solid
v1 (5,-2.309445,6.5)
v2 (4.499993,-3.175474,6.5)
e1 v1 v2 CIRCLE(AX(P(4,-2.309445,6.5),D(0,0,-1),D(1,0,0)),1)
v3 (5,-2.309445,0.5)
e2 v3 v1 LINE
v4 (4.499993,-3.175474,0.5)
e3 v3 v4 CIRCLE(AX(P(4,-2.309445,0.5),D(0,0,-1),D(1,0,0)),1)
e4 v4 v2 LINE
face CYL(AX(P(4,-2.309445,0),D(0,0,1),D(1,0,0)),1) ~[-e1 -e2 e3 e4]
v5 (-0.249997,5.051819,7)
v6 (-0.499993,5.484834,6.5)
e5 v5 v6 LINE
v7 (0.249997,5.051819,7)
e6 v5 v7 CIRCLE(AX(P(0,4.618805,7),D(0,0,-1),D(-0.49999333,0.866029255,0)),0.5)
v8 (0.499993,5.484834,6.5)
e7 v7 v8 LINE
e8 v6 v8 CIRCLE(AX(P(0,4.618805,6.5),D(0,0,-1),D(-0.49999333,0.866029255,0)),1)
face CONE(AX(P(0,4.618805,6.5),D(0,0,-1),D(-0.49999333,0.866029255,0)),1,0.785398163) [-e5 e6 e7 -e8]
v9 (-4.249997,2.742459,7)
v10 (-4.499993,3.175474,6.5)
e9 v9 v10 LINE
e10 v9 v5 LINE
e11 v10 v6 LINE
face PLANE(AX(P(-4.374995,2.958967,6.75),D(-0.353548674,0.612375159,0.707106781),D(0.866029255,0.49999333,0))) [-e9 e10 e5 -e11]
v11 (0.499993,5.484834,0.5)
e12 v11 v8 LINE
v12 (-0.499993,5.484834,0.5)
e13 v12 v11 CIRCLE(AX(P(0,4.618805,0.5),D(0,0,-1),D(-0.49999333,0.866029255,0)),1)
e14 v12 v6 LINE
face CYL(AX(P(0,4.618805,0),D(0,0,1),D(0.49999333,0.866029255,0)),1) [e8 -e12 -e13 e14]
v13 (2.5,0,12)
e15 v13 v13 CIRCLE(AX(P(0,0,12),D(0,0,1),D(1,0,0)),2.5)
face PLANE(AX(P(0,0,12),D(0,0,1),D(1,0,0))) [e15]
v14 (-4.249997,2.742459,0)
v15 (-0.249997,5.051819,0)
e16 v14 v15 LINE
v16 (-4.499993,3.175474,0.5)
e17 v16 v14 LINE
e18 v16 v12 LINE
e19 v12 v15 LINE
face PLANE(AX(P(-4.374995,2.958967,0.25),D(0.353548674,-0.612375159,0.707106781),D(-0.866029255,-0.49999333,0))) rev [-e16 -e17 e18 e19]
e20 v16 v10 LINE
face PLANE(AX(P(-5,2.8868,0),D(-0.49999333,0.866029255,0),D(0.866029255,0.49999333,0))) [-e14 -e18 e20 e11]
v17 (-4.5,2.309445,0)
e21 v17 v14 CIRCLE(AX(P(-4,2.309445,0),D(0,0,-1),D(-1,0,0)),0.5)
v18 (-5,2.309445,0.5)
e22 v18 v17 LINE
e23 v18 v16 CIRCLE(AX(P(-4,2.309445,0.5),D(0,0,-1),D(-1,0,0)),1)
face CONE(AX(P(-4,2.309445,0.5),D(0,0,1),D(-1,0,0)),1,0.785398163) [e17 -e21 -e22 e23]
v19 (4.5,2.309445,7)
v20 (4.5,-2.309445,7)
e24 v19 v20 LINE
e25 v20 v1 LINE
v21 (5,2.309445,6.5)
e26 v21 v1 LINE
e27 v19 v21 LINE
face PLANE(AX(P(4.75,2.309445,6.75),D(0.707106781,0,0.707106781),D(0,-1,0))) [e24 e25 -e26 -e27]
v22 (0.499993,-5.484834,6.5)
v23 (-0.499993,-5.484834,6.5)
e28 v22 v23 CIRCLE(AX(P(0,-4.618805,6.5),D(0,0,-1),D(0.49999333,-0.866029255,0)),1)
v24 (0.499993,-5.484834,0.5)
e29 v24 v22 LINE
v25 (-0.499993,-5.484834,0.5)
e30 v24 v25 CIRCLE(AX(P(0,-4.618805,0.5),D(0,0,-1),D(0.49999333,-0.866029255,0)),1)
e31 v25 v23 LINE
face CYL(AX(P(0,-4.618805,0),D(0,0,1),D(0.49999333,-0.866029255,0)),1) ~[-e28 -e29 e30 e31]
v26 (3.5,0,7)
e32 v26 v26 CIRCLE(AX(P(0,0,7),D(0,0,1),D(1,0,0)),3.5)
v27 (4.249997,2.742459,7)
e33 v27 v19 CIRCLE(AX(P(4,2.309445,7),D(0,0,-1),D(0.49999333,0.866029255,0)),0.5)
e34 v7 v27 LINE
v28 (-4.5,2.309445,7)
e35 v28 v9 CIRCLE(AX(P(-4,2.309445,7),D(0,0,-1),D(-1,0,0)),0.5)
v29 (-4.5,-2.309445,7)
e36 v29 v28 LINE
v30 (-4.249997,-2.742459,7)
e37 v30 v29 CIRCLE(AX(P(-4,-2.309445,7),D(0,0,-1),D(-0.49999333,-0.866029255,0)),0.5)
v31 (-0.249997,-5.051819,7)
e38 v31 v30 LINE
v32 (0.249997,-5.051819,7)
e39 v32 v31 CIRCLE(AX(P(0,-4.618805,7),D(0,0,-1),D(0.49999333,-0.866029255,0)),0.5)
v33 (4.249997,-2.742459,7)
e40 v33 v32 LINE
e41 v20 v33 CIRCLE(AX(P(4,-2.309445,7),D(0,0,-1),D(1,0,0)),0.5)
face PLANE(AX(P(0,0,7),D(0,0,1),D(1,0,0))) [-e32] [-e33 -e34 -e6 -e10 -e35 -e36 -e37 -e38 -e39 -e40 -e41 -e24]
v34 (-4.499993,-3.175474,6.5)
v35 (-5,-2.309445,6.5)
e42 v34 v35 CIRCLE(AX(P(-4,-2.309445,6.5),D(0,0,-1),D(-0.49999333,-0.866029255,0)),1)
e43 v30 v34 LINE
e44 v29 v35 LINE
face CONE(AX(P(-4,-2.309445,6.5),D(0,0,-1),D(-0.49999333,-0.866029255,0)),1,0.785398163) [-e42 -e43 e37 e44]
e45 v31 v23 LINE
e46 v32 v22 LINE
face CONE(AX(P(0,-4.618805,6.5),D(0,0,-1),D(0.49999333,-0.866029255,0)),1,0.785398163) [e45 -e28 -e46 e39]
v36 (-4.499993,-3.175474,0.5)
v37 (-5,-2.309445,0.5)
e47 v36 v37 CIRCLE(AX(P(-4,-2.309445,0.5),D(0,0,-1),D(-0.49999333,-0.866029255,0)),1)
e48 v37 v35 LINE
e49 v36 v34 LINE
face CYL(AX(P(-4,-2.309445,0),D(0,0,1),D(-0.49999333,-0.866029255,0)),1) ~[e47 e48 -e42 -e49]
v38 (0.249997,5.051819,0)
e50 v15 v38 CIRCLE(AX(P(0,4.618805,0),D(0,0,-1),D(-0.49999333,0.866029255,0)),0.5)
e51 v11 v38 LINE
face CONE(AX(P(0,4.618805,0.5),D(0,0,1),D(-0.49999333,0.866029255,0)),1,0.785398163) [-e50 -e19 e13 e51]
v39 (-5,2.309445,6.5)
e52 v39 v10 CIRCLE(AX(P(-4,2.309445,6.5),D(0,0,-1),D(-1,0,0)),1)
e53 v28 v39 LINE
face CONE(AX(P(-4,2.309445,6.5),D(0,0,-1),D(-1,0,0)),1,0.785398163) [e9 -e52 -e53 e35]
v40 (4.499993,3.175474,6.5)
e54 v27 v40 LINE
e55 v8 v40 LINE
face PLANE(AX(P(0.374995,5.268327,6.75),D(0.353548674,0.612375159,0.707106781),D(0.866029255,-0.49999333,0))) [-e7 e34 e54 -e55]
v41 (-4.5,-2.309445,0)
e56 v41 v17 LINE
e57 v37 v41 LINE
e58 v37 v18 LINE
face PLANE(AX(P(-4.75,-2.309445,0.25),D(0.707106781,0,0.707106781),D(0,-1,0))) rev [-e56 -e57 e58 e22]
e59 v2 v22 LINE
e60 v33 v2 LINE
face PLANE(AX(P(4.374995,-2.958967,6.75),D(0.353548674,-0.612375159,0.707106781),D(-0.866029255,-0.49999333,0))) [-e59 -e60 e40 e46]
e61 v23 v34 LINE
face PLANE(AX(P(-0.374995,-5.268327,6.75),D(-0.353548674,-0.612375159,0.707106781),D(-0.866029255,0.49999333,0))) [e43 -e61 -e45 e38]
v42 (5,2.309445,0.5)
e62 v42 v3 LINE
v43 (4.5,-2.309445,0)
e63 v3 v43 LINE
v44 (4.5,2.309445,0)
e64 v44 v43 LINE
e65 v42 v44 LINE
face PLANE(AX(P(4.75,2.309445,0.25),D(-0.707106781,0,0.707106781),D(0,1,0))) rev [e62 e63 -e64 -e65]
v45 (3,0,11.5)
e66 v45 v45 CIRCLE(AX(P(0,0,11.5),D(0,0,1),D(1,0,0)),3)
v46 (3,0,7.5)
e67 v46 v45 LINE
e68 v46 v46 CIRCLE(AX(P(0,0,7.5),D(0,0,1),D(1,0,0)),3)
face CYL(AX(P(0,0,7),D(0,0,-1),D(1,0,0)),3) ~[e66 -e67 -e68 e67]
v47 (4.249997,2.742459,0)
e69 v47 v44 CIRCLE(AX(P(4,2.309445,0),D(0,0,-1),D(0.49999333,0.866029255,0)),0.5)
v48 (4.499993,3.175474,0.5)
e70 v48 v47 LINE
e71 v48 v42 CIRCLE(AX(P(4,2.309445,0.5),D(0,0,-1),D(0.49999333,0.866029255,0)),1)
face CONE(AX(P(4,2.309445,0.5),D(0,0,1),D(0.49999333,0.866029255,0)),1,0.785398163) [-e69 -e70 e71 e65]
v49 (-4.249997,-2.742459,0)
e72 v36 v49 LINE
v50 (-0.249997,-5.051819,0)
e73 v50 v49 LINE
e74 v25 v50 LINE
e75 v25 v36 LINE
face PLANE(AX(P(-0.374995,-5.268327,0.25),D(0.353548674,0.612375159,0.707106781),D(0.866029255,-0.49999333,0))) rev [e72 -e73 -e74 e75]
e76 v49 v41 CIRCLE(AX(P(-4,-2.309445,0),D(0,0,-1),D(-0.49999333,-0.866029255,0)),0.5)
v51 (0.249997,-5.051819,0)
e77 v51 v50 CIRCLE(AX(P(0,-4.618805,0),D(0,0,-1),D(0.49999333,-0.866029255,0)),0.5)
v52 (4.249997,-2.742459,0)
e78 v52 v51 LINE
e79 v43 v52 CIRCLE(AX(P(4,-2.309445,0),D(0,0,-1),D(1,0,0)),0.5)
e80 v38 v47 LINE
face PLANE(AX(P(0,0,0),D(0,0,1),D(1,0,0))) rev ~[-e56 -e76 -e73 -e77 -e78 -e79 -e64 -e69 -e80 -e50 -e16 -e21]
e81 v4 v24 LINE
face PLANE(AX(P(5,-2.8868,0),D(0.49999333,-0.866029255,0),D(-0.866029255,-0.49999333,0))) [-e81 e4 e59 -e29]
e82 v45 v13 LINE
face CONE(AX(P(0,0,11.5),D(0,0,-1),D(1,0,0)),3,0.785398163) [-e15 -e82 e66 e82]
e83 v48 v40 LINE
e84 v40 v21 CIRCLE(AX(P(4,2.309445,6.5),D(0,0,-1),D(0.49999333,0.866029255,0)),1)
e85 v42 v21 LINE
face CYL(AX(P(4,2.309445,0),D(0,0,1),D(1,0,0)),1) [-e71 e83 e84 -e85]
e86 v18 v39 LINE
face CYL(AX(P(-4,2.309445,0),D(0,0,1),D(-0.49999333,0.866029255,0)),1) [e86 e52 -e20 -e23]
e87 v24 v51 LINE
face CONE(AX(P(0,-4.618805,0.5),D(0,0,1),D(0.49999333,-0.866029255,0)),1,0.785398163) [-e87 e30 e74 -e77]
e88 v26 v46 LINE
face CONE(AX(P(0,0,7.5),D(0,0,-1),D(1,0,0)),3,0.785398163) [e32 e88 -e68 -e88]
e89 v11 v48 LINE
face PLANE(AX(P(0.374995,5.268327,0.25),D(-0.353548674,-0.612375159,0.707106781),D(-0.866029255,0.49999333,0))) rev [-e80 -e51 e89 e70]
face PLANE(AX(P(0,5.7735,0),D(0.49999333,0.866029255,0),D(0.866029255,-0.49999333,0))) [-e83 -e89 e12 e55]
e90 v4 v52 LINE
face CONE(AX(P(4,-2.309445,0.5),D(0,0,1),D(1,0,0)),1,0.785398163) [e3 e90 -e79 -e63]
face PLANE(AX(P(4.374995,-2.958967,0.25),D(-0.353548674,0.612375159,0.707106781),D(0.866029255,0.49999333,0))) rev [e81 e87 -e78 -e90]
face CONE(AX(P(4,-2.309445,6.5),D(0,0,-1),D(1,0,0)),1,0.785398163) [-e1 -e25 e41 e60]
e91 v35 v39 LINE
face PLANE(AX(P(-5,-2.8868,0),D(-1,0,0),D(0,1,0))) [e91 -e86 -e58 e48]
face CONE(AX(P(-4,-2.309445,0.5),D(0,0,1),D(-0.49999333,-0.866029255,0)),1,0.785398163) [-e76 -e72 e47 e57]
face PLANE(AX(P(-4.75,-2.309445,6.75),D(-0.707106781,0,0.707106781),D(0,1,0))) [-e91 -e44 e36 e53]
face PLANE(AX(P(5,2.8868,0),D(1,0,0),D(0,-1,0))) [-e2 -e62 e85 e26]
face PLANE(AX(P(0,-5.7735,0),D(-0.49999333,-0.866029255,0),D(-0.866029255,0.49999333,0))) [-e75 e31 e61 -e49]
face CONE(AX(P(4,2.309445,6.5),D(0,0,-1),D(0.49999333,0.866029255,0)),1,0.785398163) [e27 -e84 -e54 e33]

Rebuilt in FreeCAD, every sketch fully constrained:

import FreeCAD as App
import Part
import Sketcher
Q = App.Units.Quantity


def edges_at(feature, points):
    """Names of the edges that pass closest to the given points."""
    edges = feature.Shape.Edges
    near = lambda p: min(range(len(edges)), key=lambda i: edges[i].distToShape(Part.Vertex(*p))[0])
    return sorted({f"Edge{near(p) + 1}" for p in points})

doc = App.newDocument("Part")
body = doc.addObject("PartDesign::Body", "Body")

# Sketch on XY plane
sketch1 = doc.addObject("Sketcher::SketchObject", "Sketch")
body.addObject(sketch1)
sketch1.AttachmentSupport = (doc.XY_Plane, [""])
sketch1.MapMode = "FlatFace"
sketch1.addGeometry([
    Part.LineSegment(App.Vector(5, -3, 0), App.Vector(5, 3, 0)),  # 0
    Part.LineSegment(App.Vector(5, 3, 0), App.Vector(0, 6, 0)),  # 1
    Part.LineSegment(App.Vector(0, 6, 0), App.Vector(-5, 3, 0)),  # 2
    Part.LineSegment(App.Vector(-5, 3, 0), App.Vector(-5, -3, 0)),  # 3
    Part.LineSegment(App.Vector(-5, -3, 0), App.Vector(0, -6, 0)),  # 4
    Part.LineSegment(App.Vector(0, -6, 0), App.Vector(5, -3, 0)),  # 5
], False)
sketch1.addConstraint([
    Sketcher.Constraint("Coincident", 0, 2, 1, 1),
    Sketcher.Constraint("Coincident", 1, 2, 2, 1),
    Sketcher.Constraint("Coincident", 2, 2, 3, 1),
    Sketcher.Constraint("Coincident", 3, 2, 4, 1),
    Sketcher.Constraint("Coincident", 4, 2, 5, 1),
    Sketcher.Constraint("Coincident", 5, 2, 0, 1),
    Sketcher.Constraint("Vertical", 0),
    Sketcher.Constraint("Vertical", 3),
    Sketcher.Constraint("Symmetric", 0, 2, 3, 2, -1, 1),
    Sketcher.Constraint("Symmetric", 1, 2, 4, 2, -1, 1),
    Sketcher.Constraint("PointOnObject", 1, 2, -2),
    Sketcher.Constraint("Parallel", 2, 5),
    Sketcher.Constraint("Horizontal", 0, 2, 2, 2),
    Sketcher.Constraint("DistanceX", 2, 2, 0, 2, Q("10 mm")),
    Sketcher.Constraint("Angle", 1, Q("150.0004 deg")),
    Sketcher.Constraint("DistanceY", 0, 1, 0, 2, Q("5.7736 mm")),
])
pad1 = doc.addObject("PartDesign::Pad", "Pad")
body.addObject(pad1)
pad1.Profile = sketch1
pad1.Length = 7

# Sketch on XY plane
sketch2 = doc.addObject("Sketcher::SketchObject", "Sketch001")
body.addObject(sketch2)
sketch2.AttachmentSupport = (doc.XY_Plane, [""])
sketch2.MapMode = "FlatFace"
sketch2.AttachmentOffset = App.Placement(App.Vector(0, 0, 7), App.Rotation())
sketch2.addGeometry(Part.Circle(App.Vector(0, 0, 0), App.Vector(0, 0, 1), 3), False)
sketch2.addConstraint([
    Sketcher.Constraint("Coincident", 0, 3, -1, 1),
    Sketcher.Constraint("Diameter", 0, Q("6 mm")),
])
pad2 = doc.addObject("PartDesign::Pad", "Pad001")
body.addObject(pad2)
pad2.Profile = sketch2
pad2.Length = 5
doc.recompute()

fillet = doc.addObject("PartDesign::Fillet", "Fillet")
body.addObject(fillet)
fillet.Base = (pad2, edges_at(pad2, [
    (-5, 2.887, 3.5),
    (-5, -2.887, 3.5),
    (0, -5.774, 3.5),
    (5, -2.887, 3.5),
    (5, 2.887, 3.5),
    (0, 5.774, 3.5),
]))
fillet.Radius = 1
doc.recompute()

chamfer = doc.addObject("PartDesign::Chamfer", "Chamfer")
body.addObject(chamfer)
chamfer.Base = (fillet, edges_at(fillet, [(-3, 0, 7)]))
chamfer.Size = 0.5
doc.recompute()

chamfer2 = doc.addObject("PartDesign::Chamfer", "Chamfer001")
body.addObject(chamfer2)
chamfer2.Base = (chamfer, edges_at(chamfer, [
    (-3, 0, 12),
    (2.5, -4.33, 7),
    (4.866, -2.809, 7),
    (5, 0, 7),
    (4.866, 2.809, 7),
    (2.5, 4.33, 7),
    (0, 5.619, 7),
    (-2.5, 4.33, 7),
    (-4.866, 2.809, 7),
    (-5, 0, 7),
    (-4.866, -2.809, 7),
    (-2.5, -4.33, 7),
    (0, -5.619, 7),
    (2.5, -4.33, 0),
    (4.866, -2.809, 0),
    (5, 0, 0),
    (4.866, 2.809, 0),
    (2.5, 4.33, 0),
    (0, 5.619, 0),
    (-2.5, 4.33, 0),
    (-4.866, 2.809, 0),
    (-5, 0, 0),
    (-4.866, -2.809, 0),
    (-2.5, -4.33, 0),
    (0, -5.619, 0),
]))
chamfer2.Size = 0.5

doc.recompute()
